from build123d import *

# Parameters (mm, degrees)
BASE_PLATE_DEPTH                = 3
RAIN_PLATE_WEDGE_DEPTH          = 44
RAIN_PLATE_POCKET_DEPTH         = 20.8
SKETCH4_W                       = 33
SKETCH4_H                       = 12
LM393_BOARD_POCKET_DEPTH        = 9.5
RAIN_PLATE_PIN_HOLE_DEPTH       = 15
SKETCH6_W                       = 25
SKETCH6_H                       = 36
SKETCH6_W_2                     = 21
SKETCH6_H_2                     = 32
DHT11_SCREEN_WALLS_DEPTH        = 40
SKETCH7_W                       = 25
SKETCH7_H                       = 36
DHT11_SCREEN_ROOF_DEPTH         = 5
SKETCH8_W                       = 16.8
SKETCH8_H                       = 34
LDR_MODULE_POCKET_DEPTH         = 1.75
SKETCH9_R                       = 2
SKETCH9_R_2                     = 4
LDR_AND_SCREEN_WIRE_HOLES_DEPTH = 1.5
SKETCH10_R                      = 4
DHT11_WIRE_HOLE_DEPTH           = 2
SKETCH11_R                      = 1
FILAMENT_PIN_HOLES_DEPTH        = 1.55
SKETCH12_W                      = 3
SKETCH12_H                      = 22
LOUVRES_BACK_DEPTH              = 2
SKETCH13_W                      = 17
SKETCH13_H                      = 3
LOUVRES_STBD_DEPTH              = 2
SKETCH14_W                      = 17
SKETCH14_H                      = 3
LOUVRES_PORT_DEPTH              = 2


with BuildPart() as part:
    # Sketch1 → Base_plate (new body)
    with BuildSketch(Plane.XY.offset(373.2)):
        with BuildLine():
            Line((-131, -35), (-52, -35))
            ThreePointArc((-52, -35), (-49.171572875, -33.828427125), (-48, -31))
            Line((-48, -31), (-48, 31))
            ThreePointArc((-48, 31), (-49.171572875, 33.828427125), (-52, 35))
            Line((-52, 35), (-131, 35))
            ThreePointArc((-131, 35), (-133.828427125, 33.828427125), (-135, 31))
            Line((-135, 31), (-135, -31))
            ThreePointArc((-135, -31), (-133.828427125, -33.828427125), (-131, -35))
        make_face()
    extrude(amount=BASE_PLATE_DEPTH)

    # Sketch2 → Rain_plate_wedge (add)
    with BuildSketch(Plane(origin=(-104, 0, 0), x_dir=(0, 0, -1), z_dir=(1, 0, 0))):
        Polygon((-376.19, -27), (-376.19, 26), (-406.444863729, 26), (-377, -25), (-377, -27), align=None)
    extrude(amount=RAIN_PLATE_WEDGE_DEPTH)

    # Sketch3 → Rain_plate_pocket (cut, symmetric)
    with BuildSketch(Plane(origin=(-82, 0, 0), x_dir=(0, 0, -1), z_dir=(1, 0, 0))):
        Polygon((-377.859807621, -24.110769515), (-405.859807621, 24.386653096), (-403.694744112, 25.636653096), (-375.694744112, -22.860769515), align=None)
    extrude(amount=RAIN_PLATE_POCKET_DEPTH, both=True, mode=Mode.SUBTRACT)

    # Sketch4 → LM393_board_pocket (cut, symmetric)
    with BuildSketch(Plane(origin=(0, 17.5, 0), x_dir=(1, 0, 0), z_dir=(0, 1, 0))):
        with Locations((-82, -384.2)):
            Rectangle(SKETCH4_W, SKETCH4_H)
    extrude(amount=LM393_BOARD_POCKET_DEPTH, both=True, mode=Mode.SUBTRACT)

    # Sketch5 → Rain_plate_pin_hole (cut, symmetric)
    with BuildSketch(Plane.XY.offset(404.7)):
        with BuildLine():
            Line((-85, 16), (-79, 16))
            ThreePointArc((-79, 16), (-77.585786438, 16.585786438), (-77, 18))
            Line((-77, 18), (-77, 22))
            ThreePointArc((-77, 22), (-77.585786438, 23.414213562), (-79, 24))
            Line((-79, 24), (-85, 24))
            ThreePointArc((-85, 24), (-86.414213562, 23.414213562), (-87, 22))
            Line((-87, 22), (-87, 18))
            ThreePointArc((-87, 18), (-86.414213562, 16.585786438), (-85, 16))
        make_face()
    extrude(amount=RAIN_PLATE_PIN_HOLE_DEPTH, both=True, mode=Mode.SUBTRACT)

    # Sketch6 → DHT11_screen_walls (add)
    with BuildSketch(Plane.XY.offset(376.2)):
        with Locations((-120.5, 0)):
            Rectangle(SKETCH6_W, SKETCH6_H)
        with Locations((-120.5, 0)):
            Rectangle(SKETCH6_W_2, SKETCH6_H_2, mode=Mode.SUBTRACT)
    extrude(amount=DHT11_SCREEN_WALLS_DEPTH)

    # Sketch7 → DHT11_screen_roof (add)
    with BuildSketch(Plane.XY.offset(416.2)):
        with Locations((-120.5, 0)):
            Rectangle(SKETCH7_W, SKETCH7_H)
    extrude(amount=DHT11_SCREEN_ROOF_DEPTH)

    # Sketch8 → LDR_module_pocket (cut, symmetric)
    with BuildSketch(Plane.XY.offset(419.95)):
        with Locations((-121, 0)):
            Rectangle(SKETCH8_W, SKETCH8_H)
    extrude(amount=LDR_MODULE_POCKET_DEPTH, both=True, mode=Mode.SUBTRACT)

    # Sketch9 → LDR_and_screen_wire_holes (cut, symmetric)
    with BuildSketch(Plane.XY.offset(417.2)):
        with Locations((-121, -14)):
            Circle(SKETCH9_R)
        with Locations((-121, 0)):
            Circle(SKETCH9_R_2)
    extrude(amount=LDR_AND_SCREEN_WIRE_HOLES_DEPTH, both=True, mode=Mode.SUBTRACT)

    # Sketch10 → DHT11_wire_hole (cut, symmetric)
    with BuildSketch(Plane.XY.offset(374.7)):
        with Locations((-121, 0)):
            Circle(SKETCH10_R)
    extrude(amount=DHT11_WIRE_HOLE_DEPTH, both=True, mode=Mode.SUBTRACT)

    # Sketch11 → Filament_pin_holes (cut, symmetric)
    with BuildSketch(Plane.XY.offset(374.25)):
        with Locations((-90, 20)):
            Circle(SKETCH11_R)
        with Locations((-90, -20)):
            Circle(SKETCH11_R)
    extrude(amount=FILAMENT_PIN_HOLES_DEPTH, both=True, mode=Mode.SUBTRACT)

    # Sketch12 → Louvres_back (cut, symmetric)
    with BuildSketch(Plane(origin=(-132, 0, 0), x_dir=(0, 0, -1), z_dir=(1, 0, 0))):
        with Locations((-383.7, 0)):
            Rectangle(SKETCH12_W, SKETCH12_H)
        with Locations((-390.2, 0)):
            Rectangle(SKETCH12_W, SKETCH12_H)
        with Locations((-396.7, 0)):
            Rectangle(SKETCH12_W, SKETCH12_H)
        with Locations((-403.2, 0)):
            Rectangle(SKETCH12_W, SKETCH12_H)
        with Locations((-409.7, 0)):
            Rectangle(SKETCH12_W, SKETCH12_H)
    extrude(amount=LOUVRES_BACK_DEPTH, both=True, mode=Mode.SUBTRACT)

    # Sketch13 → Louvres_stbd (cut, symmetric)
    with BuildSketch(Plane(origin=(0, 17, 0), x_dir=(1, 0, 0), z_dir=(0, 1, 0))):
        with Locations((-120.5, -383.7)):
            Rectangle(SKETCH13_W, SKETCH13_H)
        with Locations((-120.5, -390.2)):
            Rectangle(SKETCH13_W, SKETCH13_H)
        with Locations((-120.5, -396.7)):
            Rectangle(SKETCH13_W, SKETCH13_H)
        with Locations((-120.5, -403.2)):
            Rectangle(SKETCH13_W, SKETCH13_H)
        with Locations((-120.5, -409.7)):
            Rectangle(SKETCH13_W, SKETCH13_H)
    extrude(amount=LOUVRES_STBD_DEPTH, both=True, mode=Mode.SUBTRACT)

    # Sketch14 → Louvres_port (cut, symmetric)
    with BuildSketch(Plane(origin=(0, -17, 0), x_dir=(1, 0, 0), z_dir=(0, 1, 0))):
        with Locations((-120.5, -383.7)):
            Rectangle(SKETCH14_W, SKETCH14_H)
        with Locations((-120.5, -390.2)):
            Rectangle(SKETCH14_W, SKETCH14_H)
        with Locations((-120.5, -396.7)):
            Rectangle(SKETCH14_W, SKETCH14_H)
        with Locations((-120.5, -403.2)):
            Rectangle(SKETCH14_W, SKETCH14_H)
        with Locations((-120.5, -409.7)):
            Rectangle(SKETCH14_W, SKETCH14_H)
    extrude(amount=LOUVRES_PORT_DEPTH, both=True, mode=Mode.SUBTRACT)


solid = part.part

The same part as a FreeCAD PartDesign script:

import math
import FreeCAD as App
import Part
import Sketcher
Q = App.Units.Quantity

doc = App.newDocument("Part")
body = doc.addObject("PartDesign::Body", "Body")

# Sketch on XY plane
sketch1 = body.newObject("Sketcher::SketchObject", "Sketch")
sketch1.AttachmentSupport = (doc.getObject("XY_Plane"), [""])
sketch1.MapMode = "FlatFace"
sketch1.AttachmentOffset = App.Placement(App.Vector(0, 0, 373.2), App.Rotation())
sketch1.addGeometry([
    Part.LineSegment(App.Vector(-131, -35, 0), App.Vector(-52, -35, 0)),  # 0
    Part.ArcOfCircle(Part.Circle(App.Vector(-52, -31, 0), App.Vector(0, 0, 1), 4), math.radians(-90), math.radians(0)),  # 1
    Part.LineSegment(App.Vector(-48, -31, 0), App.Vector(-48, 31, 0)),  # 2
    Part.ArcOfCircle(Part.Circle(App.Vector(-52, 31, 0), App.Vector(0, 0, 1), 4), math.radians(0), math.radians(90)),  # 3
    Part.LineSegment(App.Vector(-52, 35, 0), App.Vector(-131, 35, 0)),  # 4
    Part.ArcOfCircle(Part.Circle(App.Vector(-131, 31, 0), App.Vector(0, 0, 1), 4), math.radians(90), math.radians(180)),  # 5
    Part.LineSegment(App.Vector(-135, 31, 0), App.Vector(-135, -31, 0)),  # 6
    Part.ArcOfCircle(Part.Circle(App.Vector(-131, -31, 0), App.Vector(0, 0, 1), 4), math.radians(180), math.radians(270)),  # 7
], False)
sketch1.addConstraint([
    Sketcher.Constraint("Tangent", 0, 2, 1, 1),
    Sketcher.Constraint("Tangent", 1, 2, 2, 1),
    Sketcher.Constraint("Tangent", 2, 2, 3, 1),
    Sketcher.Constraint("Tangent", 3, 2, 4, 1),
    Sketcher.Constraint("Tangent", 4, 2, 5, 1),
    Sketcher.Constraint("Tangent", 5, 2, 6, 1),
    Sketcher.Constraint("Tangent", 6, 2, 7, 1),
    Sketcher.Constraint("Tangent", 7, 2, 0, 1),
    Sketcher.Constraint("Horizontal", 0),
    Sketcher.Constraint("Vertical", 2),
    Sketcher.Constraint("Horizontal", 4),
    Sketcher.Constraint("Vertical", 6),
    Sketcher.Constraint("Equal", 1, 3),
    Sketcher.Constraint("Equal", 3, 5),
    Sketcher.Constraint("Equal", 5, 7),
    Sketcher.Constraint("Radius", 1, 4.0),
    Sketcher.Constraint("DistanceX", 0, 1, 0, 2, 79.0),
    Sketcher.Constraint("DistanceY", 2, 1, 2, 2, 62.0),
    Sketcher.Constraint("DistanceX", 1, 3, -1, 1, 52.0),
    Sketcher.Constraint("DistanceY", 1, 3, -1, 1, 31.0),
])
pad1 = body.newObject("PartDesign::Pad", "Pad")
pad1.Profile = sketch1
pad1.Length = 3

# Sketch on YZ plane
sketch2 = body.newObject("Sketcher::SketchObject", "Sketch001")
sketch2.AttachmentSupport = (doc.getObject("YZ_Plane"), [""])
sketch2.MapMode = "FlatFace"
sketch2.AttachmentOffset = App.Placement(App.Vector(0, 0, -104), App.Rotation())
sketch2.addGeometry([
    Part.LineSegment(App.Vector(-27, 376.19, 0), App.Vector(26, 376.19, 0)),  # 0
    Part.LineSegment(App.Vector(26, 376.19, 0), App.Vector(26, 406.444864, 0)),  # 1
    Part.LineSegment(App.Vector(26, 406.444864, 0), App.Vector(-25, 377, 0)),  # 2
    Part.LineSegment(App.Vector(-25, 377, 0), App.Vector(-27, 377, 0)),  # 3
    Part.LineSegment(App.Vector(-27, 377, 0), App.Vector(-27, 376.19, 0)),  # 4
], False)
sketch2.addConstraint([
    Sketcher.Constraint("Coincident", 0, 2, 1, 1),
    Sketcher.Constraint("Coincident", 1, 2, 2, 1),
    Sketcher.Constraint("Coincident", 2, 2, 3, 1),
    Sketcher.Constraint("Coincident", 3, 2, 4, 1),
    Sketcher.Constraint("Coincident", 4, 2, 0, 1),
    Sketcher.Constraint("Horizontal", 0),
    Sketcher.Constraint("Vertical", 1),
    Sketcher.Constraint("Horizontal", 3),
    Sketcher.Constraint("Vertical", 4),
    Sketcher.Constraint("DistanceX", 0, 1, 0, 2, 53.0),
    Sketcher.Constraint("DistanceX", 3, 2, 3, 1, 2.0),
    Sketcher.Constraint("Angle", 2, Q("-150 deg")),
    Sketcher.Constraint("DistanceX", -1, 1, 0, 2, 26.0),
    Sketcher.Constraint("DistanceY", -1, 1, 2, 2, 377.0),
    Sketcher.Constraint("DistanceY", 4, 2, 4, 1, 0.81),
])
pad2 = body.newObject("PartDesign::Pad", "Pad001")
pad2.Profile = sketch2
pad2.Length = 44

# Sketch on YZ plane
sketch3 = body.newObject("Sketcher::SketchObject", "Sketch002")
sketch3.AttachmentSupport = (doc.getObject("YZ_Plane"), [""])
sketch3.MapMode = "FlatFace"
sketch3.AttachmentOffset = App.Placement(App.Vector(0, 0, -82), App.Rotation())
sketch3.addGeometry([
    Part.LineSegment(App.Vector(24.386653, 405.859808, 0), App.Vector(-24.11077, 377.859808, 0)),
    Part.LineSegment(App.Vector(-24.11077, 377.859808, 0), App.Vector(-22.86077, 375.694744, 0)),
    Part.LineSegment(App.Vector(-22.86077, 375.694744, 0), App.Vector(25.636653, 403.694744, 0)),
    Part.LineSegment(App.Vector(25.636653, 403.694744, 0), App.Vector(24.386653, 405.859808, 0)),
], False)
sketch3.addConstraint([
    Sketcher.Constraint("Coincident", 0, 2, 1, 1),
    Sketcher.Constraint("Coincident", 1, 2, 2, 1),
    Sketcher.Constraint("Coincident", 2, 2, 3, 1),
    Sketcher.Constraint("Coincident", 3, 2, 0, 1),
    Sketcher.Constraint("Perpendicular", 0, 1),
    Sketcher.Constraint("Perpendicular", 1, 2),
    Sketcher.Constraint("Perpendicular", 2, 3),
    Sketcher.Constraint("Angle", 0, Q("-150 deg")),
    Sketcher.Constraint("Distance", 0, 56.0),
    Sketcher.Constraint("Distance", 1, 2.5),
    Sketcher.Constraint("DistanceX", 0, 2, -1, 1, 24.11077),
    Sketcher.Constraint("DistanceY", -1, 1, 0, 2, 377.859808),
])
pocket1 = body.newObject("PartDesign::Pocket", "Pocket")
pocket1.Profile = sketch3
pocket1.Length = 41.6
pocket1.Midplane = True

# Sketch on XZ plane
sketch4 = body.newObject("Sketcher::SketchObject", "Sketch003")
sketch4.AttachmentSupport = (doc.getObject("XZ_Plane"), [""])
sketch4.MapMode = "FlatFace"
sketch4.AttachmentOffset = App.Placement(App.Vector(0, 0, -17.5), App.Rotation())
sketch4.addGeometry([
    Part.LineSegment(App.Vector(-98.5, 378.2, 0), App.Vector(-98.5, 390.2, 0)),
    Part.LineSegment(App.Vector(-98.5, 390.2, 0), App.Vector(-65.5, 390.2, 0)),
    Part.LineSegment(App.Vector(-65.5, 390.2, 0), App.Vector(-65.5, 378.2, 0)),
    Part.LineSegment(App.Vector(-65.5, 378.2, 0), App.Vector(-98.5, 378.2, 0)),
], False)
sketch4.addConstraint([
    Sketcher.Constraint("Coincident", 0, 2, 1, 1),
    Sketcher.Constraint("Coincident", 1, 2, 2, 1),
    Sketcher.Constraint("Coincident", 2, 2, 3, 1),
    Sketcher.Constraint("Coincident", 3, 2, 0, 1),
    Sketcher.Constraint("Vertical", 0),
    Sketcher.Constraint("Horizontal", 1),
    Sketcher.Constraint("Vertical", 2),
    Sketcher.Constraint("Horizontal", 3),
    Sketcher.Constraint("DistanceX", 1, 1, 1, 2, 33.0),
    Sketcher.Constraint("DistanceY", 0, 1, 0, 2, 12.0),
    Sketcher.Constraint("DistanceX", 0, 2, -1, 1, 98.5),
    Sketcher.Constraint("DistanceY", -1, 1, 0, 2, 390.2),
])
pocket2 = body.newObject("PartDesign::Pocket", "Pocket001")
pocket2.Profile = sketch4
pocket2.Length = 19
pocket2.Midplane = True

# Sketch on XY plane
sketch5 = body.newObject("Sketcher::SketchObject", "Sketch004")
sketch5.AttachmentSupport = (doc.getObject("XY_Plane"), [""])
sketch5.MapMode = "FlatFace"
sketch5.AttachmentOffset = App.Placement(App.Vector(0, 0, 404.7), App.Rotation())
sketch5.addGeometry([
    Part.LineSegment(App.Vector(-85, 16, 0), App.Vector(-79, 16, 0)),  # 0
    Part.ArcOfCircle(Part.Circle(App.Vector(-79, 18, 0), App.Vector(0, 0, 1), 2), math.radians(-90), math.radians(0)),  # 1
    Part.LineSegment(App.Vector(-77, 18, 0), App.Vector(-77, 22, 0)),  # 2
    Part.ArcOfCircle(Part.Circle(App.Vector(-79, 22, 0), App.Vector(0, 0, 1), 2), math.radians(0), math.radians(90)),  # 3
    Part.LineSegment(App.Vector(-79, 24, 0), App.Vector(-85, 24, 0)),  # 4
    Part.ArcOfCircle(Part.Circle(App.Vector(-85, 22, 0), App.Vector(0, 0, 1), 2), math.radians(90), math.radians(180)),  # 5
    Part.LineSegment(App.Vector(-87, 22, 0), App.Vector(-87, 18, 0)),  # 6
    Part.ArcOfCircle(Part.Circle(App.Vector(-85, 18, 0), App.Vector(0, 0, 1), 2), math.radians(-180), math.radians(-90)),  # 7
], False)
sketch5.addConstraint([
    Sketcher.Constraint("Tangent", 0, 2, 1, 1),
    Sketcher.Constraint("Tangent", 1, 2, 2, 1),
    Sketcher.Constraint("Tangent", 2, 2, 3, 1),
    Sketcher.Constraint("Tangent", 3, 2, 4, 1),
    Sketcher.Constraint("Tangent", 4, 2, 5, 1),
    Sketcher.Constraint("Tangent", 5, 2, 6, 1),
    Sketcher.Constraint("Tangent", 6, 2, 7, 1),
    Sketcher.Constraint("Tangent", 7, 2, 0, 1),
    Sketcher.Constraint("Horizontal", 0),
    Sketcher.Constraint("Vertical", 2),
    Sketcher.Constraint("Horizontal", 4),
    Sketcher.Constraint("Vertical", 6),
    Sketcher.Constraint("Equal", 1, 3),
    Sketcher.Constraint("Equal", 3, 5),
    Sketcher.Constraint("Equal", 5, 7),
    Sketcher.Constraint("Radius", 1, 2.0),
    Sketcher.Constraint("DistanceX", 0, 1, 0, 2, 6.0),
    Sketcher.Constraint("DistanceY", 2, 1, 2, 2, 4.0),
    Sketcher.Constraint("DistanceX", 1, 3, -1, 1, 79.0),
    Sketcher.Constraint("DistanceY", -1, 1, 1, 3, 18.0),
])
pocket3 = body.newObject("PartDesign::Pocket", "Pocket002")
pocket3.Profile = sketch5
pocket3.Length = 30
pocket3.Midplane = True

# Sketch on XY plane
sketch6 = body.newObject("Sketcher::SketchObject", "Sketch005")
sketch6.AttachmentSupport = (doc.getObject("XY_Plane"), [""])
sketch6.MapMode = "FlatFace"
sketch6.AttachmentOffset = App.Placement(App.Vector(0, 0, 376.2), App.Rotation())
sketch6.addGeometry([
    Part.LineSegment(App.Vector(-133, 18, 0), App.Vector(-133, -18, 0)),  # 0
    Part.LineSegment(App.Vector(-133, -18, 0), App.Vector(-108, -18, 0)),  # 1
    Part.LineSegment(App.Vector(-108, -18, 0), App.Vector(-108, 18, 0)),  # 2
    Part.LineSegment(App.Vector(-108, 18, 0), App.Vector(-133, 18, 0)),  # 3
    Part.LineSegment(App.Vector(-110, -16, 0), App.Vector(-131, -16, 0)),  # 4
    Part.LineSegment(App.Vector(-131, -16, 0), App.Vector(-131, 16, 0)),  # 5
    Part.LineSegment(App.Vector(-131, 16, 0), App.Vector(-110, 16, 0)),  # 6
    Part.LineSegment(App.Vector(-110, 16, 0), App.Vector(-110, -16, 0)),  # 7
], False)
sketch6.addConstraint([
    Sketcher.Constraint("Coincident", 0, 2, 1, 1),
    Sketcher.Constraint("Coincident", 1, 2, 2, 1),
    Sketcher.Constraint("Coincident", 2, 2, 3, 1),
    Sketcher.Constraint("Coincident", 3, 2, 0, 1),
    Sketcher.Constraint("Coincident", 4, 2, 5, 1),
    Sketcher.Constraint("Coincident", 5, 2, 6, 1),
    Sketcher.Constraint("Coincident", 6, 2, 7, 1),
    Sketcher.Constraint("Coincident", 7, 2, 4, 1),
    Sketcher.Constraint("Vertical", 0),
    Sketcher.Constraint("Horizontal", 1),
    Sketcher.Constraint("Vertical", 2),
    Sketcher.Constraint("Horizontal", 3),
    Sketcher.Constraint("Horizontal", 4),
    Sketcher.Constraint("Vertical", 5),
    Sketcher.Constraint("Horizontal", 6),
    Sketcher.Constraint("Vertical", 7),
    Sketcher.Constraint("DistanceX", 1, 1, 1, 2, 25.0),
    Sketcher.Constraint("DistanceX", 4, 2, 4, 1, 21.0),
    Sketcher.Constraint("DistanceY", 0, 2, 0, 1, 36.0),
    Sketcher.Constraint("DistanceY", 5, 1, 5, 2, 32.0),
    Sketcher.Constraint("DistanceX", 0, 2, -1, 1, 133.0),
    Sketcher.Constraint("DistanceY", 0, 2, -1, 1, 18.0),
    Sketcher.Constraint("DistanceX", 4, 2, -1, 1, 131.0),
    Sketcher.Constraint("DistanceY", 4, 2, -1, 1, 16.0),
])
pad3 = body.newObject("PartDesign::Pad", "Pad002")
pad3.Profile = sketch6
pad3.Length = 40

# Sketch on XY plane
sketch7 = body.newObject("Sketcher::SketchObject", "Sketch006")
sketch7.AttachmentSupport = (doc.getObject("XY_Plane"), [""])
sketch7.MapMode = "FlatFace"
sketch7.AttachmentOffset = App.Placement(App.Vector(0, 0, 416.2), App.Rotation())
sketch7.addGeometry([
    Part.LineSegment(App.Vector(-133, 18, 0), App.Vector(-133, -18, 0)),
    Part.LineSegment(App.Vector(-133, -18, 0), App.Vector(-108, -18, 0)),
    Part.LineSegment(App.Vector(-108, -18, 0), App.Vector(-108, 18, 0)),
    Part.LineSegment(App.Vector(-108, 18, 0), App.Vector(-133, 18, 0)),
], False)
sketch7.addConstraint([
    Sketcher.Constraint("Coincident", 0, 2, 1, 1),
    Sketcher.Constraint("Coincident", 1, 2, 2, 1),
    Sketcher.Constraint("Coincident", 2, 2, 3, 1),
    Sketcher.Constraint("Coincident", 3, 2, 0, 1),
    Sketcher.Constraint("Vertical", 0),
    Sketcher.Constraint("Horizontal", 1),
    Sketcher.Constraint("Vertical", 2),
    Sketcher.Constraint("Horizontal", 3),
    Sketcher.Constraint("DistanceX", 1, 1, 1, 2, 25.0),
    Sketcher.Constraint("DistanceY", 0, 2, 0, 1, 36.0),
    Sketcher.Constraint("DistanceX", 0, 2, -1, 1, 133.0),
    Sketcher.Constraint("DistanceY", 0, 2, -1, 1, 18.0),
])
pad4 = body.newObject("PartDesign::Pad", "Pad003")
pad4.Profile = sketch7
pad4.Length = 5

# Sketch on XY plane
sketch8 = body.newObject("Sketcher::SketchObject", "Sketch007")
sketch8.AttachmentSupport = (doc.getObject("XY_Plane"), [""])
sketch8.MapMode = "FlatFace"
sketch8.AttachmentOffset = App.Placement(App.Vector(0, 0, 419.95), App.Rotation())
sketch8.addGeometry([
    Part.LineSegment(App.Vector(-129.4, 17, 0), App.Vector(-129.4, -17, 0)),
    Part.LineSegment(App.Vector(-129.4, -17, 0), App.Vector(-112.6, -17, 0)),
    Part.LineSegment(App.Vector(-112.6, -17, 0), App.Vector(-112.6, 17, 0)),
    Part.LineSegment(App.Vector(-112.6, 17, 0), App.Vector(-129.4, 17, 0)),
], False)
sketch8.addConstraint([
    Sketcher.Constraint("Coincident", 0, 2, 1, 1),
    Sketcher.Constraint("Coincident", 1, 2, 2, 1),
    Sketcher.Constraint("Coincident", 2, 2, 3, 1),
    Sketcher.Constraint("Coincident", 3, 2, 0, 1),
    Sketcher.Constraint("Vertical", 0),
    Sketcher.Constraint("Horizontal", 1),
    Sketcher.Constraint("Vertical", 2),
    Sketcher.Constraint("Horizontal", 3),
    Sketcher.Constraint("DistanceY", 0, 2, 0, 1, 34.0),
    Sketcher.Constraint("DistanceX", 1, 1, 1, 2, 16.8),
    Sketcher.Constraint("DistanceY", 0, 2, -1, 1, 17.0),
    Sketcher.Constraint("DistanceX", 0, 2, -1, 1, 129.4),
])
pocket4 = body.newObject("PartDesign::Pocket", "Pocket003")
pocket4.Profile = sketch8
pocket4.Length = 3.5
pocket4.Midplane = True

# Sketch on XY plane
sketch9 = body.newObject("Sketcher::SketchObject", "Sketch008")
sketch9.AttachmentSupport = (doc.getObject("XY_Plane"), [""])
sketch9.MapMode = "FlatFace"
sketch9.AttachmentOffset = App.Placement(App.Vector(0, 0, 417.2), App.Rotation())
sketch9.addGeometry([
    Part.Circle(App.Vector(-121, -14, 0), App.Vector(0, 0, 1), 2),
    Part.Circle(App.Vector(-121, 0, 0), App.Vector(0, 0, 1), 4),
], False)
sketch9.addConstraint([
    Sketcher.Constraint("PointOnObject", 1, 3, -1),
    Sketcher.Constraint("Vertical", 0, 3, 1, 3),
    Sketcher.Constraint("Diameter", 0, 4.0),
    Sketcher.Constraint("Diameter", 1, 8.0),
    Sketcher.Constraint("DistanceX", 0, 3, -1, 1, 121.0),
    Sketcher.Constraint("DistanceY", 0, 3, -1, 1, 14.0),
])
pocket5 = body.newObject("PartDesign::Pocket", "Pocket004")
pocket5.Profile = sketch9
pocket5.Length = 3
pocket5.Midplane = True

# Sketch on XY plane
sketch10 = body.newObject("Sketcher::SketchObject", "Sketch009")
sketch10.AttachmentSupport = (doc.getObject("XY_Plane"), [""])
sketch10.MapMode = "FlatFace"
sketch10.AttachmentOffset = App.Placement(App.Vector(0, 0, 374.7), App.Rotation())
sketch10.addGeometry(Part.Circle(App.Vector(-121, 0, 0), App.Vector(0, 0, 1), 4), False)
sketch10.addConstraint([
    Sketcher.Constraint("PointOnObject", 0, 3, -1),
    Sketcher.Constraint("Diameter", 0, 8.0),
    Sketcher.Constraint("DistanceX", 0, 3, -1, 1, 121.0),
])
pocket6 = body.newObject("PartDesign::Pocket", "Pocket005")
pocket6.Profile = sketch10
pocket6.Length = 4
pocket6.Midplane = True

# Sketch on XY plane
sketch11 = body.newObject("Sketcher::SketchObject", "Sketch010")
sketch11.AttachmentSupport = (doc.getObject("XY_Plane"), [""])
sketch11.MapMode = "FlatFace"
sketch11.AttachmentOffset = App.Placement(App.Vector(0, 0, 374.25), App.Rotation())
sketch11.addGeometry([
    Part.Circle(App.Vector(-90, 20, 0), App.Vector(0, 0, 1), 1),
    Part.Circle(App.Vector(-90, -20, 0), App.Vector(0, 0, 1), 1),
], False)
sketch11.addConstraint([
    Sketcher.Constraint("Equal", 0, 1),
    Sketcher.Constraint("Symmetric", 0, 3, 1, 3, -1),
    Sketcher.Constraint("Diameter", 0, 2.0),
    Sketcher.Constraint("DistanceX", 0, 3, -1, 1, 90.0),
    Sketcher.Constraint("DistanceY", -1, 1, 0, 3, 20.0),
])
pocket7 = body.newObject("PartDesign::Pocket", "Pocket006")
pocket7.Profile = sketch11
pocket7.Length = 3.1
pocket7.Midplane = True

# Sketch on YZ plane
sketch12 = body.newObject("Sketcher::SketchObject", "Sketch011")
sketch12.AttachmentSupport = (doc.getObject("YZ_Plane"), [""])
sketch12.MapMode = "FlatFace"
sketch12.AttachmentOffset = App.Placement(App.Vector(0, 0, -132), App.Rotation())
sketch12.addGeometry([
    Part.LineSegment(App.Vector(11, 385.2, 0), App.Vector(-11, 385.2, 0)),  # 0
    Part.LineSegment(App.Vector(-11, 385.2, 0), App.Vector(-11, 382.2, 0)),  # 1
    Part.LineSegment(App.Vector(-11, 382.2, 0), App.Vector(11, 382.2, 0)),  # 2
    Part.LineSegment(App.Vector(11, 382.2, 0), App.Vector(11, 385.2, 0)),  # 3
    Part.LineSegment(App.Vector(11, 391.7, 0), App.Vector(-11, 391.7, 0)),  # 4
    Part.LineSegment(App.Vector(-11, 391.7, 0), App.Vector(-11, 388.7, 0)),  # 5
    Part.LineSegment(App.Vector(-11, 388.7, 0), App.Vector(11, 388.7, 0)),  # 6
    Part.LineSegment(App.Vector(11, 388.7, 0), App.Vector(11, 391.7, 0)),  # 7
    Part.LineSegment(App.Vector(11, 398.2, 0), App.Vector(-11, 398.2, 0)),  # 8
    Part.LineSegment(App.Vector(-11, 398.2, 0), App.Vector(-11, 395.2, 0)),  # 9
    Part.LineSegment(App.Vector(-11, 395.2, 0), App.Vector(11, 395.2, 0)),  # 10
    Part.LineSegment(App.Vector(11, 395.2, 0), App.Vector(11, 398.2, 0)),  # 11
    Part.LineSegment(App.Vector(11, 404.7, 0), App.Vector(-11, 404.7, 0)),  # 12
    Part.LineSegment(App.Vector(-11, 404.7, 0), App.Vector(-11, 401.7, 0)),  # 13
    Part.LineSegment(App.Vector(-11, 401.7, 0), App.Vector(11, 401.7, 0)),  # 14
    Part.LineSegment(App.Vector(11, 401.7, 0), App.Vector(11, 404.7, 0)),  # 15
    Part.LineSegment(App.Vector(11, 411.2, 0), App.Vector(-11, 411.2, 0)),  # 16
    Part.LineSegment(App.Vector(-11, 411.2, 0), App.Vector(-11, 408.2, 0)),  # 17
    Part.LineSegment(App.Vector(-11, 408.2, 0), App.Vector(11, 408.2, 0)),  # 18
    Part.LineSegment(App.Vector(11, 408.2, 0), App.Vector(11, 411.2, 0)),  # 19
], False)
sketch12.addConstraint([
    Sketcher.Constraint("Coincident", 0, 2, 1, 1),
    Sketcher.Constraint("Coincident", 1, 2, 2, 1),
    Sketcher.Constraint("Coincident", 2, 2, 3, 1),
    Sketcher.Constraint("Coincident", 3, 2, 0, 1),
    Sketcher.Constraint("Coincident", 4, 2, 5, 1),
    Sketcher.Constraint("Coincident", 5, 2, 6, 1),
    Sketcher.Constraint("Coincident", 6, 2, 7, 1),
    Sketcher.Constraint("Coincident", 7, 2, 4, 1),
    Sketcher.Constraint("Coincident", 8, 2, 9, 1),
    Sketcher.Constraint("Coincident", 9, 2, 10, 1),
    Sketcher.Constraint("Coincident", 10, 2, 11, 1),
    Sketcher.Constraint("Coincident", 11, 2, 8, 1),
    Sketcher.Constraint("Coincident", 12, 2, 13, 1),
    Sketcher.Constraint("Coincident", 13, 2, 14, 1),
    Sketcher.Constraint("Coincident", 14, 2, 15, 1),
    Sketcher.Constraint("Coincident", 15, 2, 12, 1),
    Sketcher.Constraint("Coincident", 16, 2, 17, 1),
    Sketcher.Constraint("Coincident", 17, 2, 18, 1),
    Sketcher.Constraint("Coincident", 18, 2, 19, 1),
    Sketcher.Constraint("Coincident", 19, 2, 16, 1),
    Sketcher.Constraint("Horizontal", 0),
    Sketcher.Constraint("Vertical", 1),
    Sketcher.Constraint("Horizontal", 2),
    Sketcher.Constraint("Vertical", 3),
    Sketcher.Constraint("Horizontal", 4),
    Sketcher.Constraint("Vertical", 5),
    Sketcher.Constraint("Horizontal", 6),
    Sketcher.Constraint("Vertical", 7),
    Sketcher.Constraint("Horizontal", 8),
    Sketcher.Constraint("Vertical", 9),
    Sketcher.Constraint("Horizontal", 10),
    Sketcher.Constraint("Vertical", 11),
    Sketcher.Constraint("Horizontal", 12),
    Sketcher.Constraint("Vertical", 13),
    Sketcher.Constraint("Horizontal", 14),
    Sketcher.Constraint("Vertical", 15),
    Sketcher.Constraint("Horizontal", 16),
    Sketcher.Constraint("Vertical", 17),
    Sketcher.Constraint("Horizontal", 18),
    Sketcher.Constraint("Vertical", 19),
    Sketcher.Constraint("Vertical", 1, 2, 4, 2),
    Sketcher.Constraint("Vertical", 3, 2, 6, 2),
    Sketcher.Constraint("Vertical", 5, 2, 8, 2),
    Sketcher.Constraint("Vertical", 7, 2, 10, 2),
    Sketcher.Constraint("Vertical", 9, 2, 12, 2),
    Sketcher.Constraint("Vertical", 11, 2, 14, 2),
    Sketcher.Constraint("Vertical", 13, 2, 16, 2),
    Sketcher.Constraint("Vertical", 15, 2, 18, 2),
    Sketcher.Constraint("Equal", 3, 5),
    Sketcher.Constraint("Equal", 7, 9),
    Sketcher.Constraint("Equal", 11, 13),
    Sketcher.Constraint("Equal", 15, 17),
    Sketcher.Constraint("DistanceX", 0, 2, 0, 1, 22.0),
    Sketcher.Constraint("DistanceY", 1, 2, 1, 1, 3.0),
    Sketcher.Constraint("DistanceX", 0, 2, -1, 1, 11.0),
    Sketcher.Constraint("DistanceY", 0, 2, 8, 2, 13.0),
    Sketcher.Constraint("DistanceY", 4, 2, 12, 2, 13.0),
    Sketcher.Constraint("DistanceY", 8, 2, 16, 2, 13.0),
    Sketcher.Constraint("DistanceY", -1, 1, 0, 2, 385.2),
    Sketcher.Constraint("DistanceY", -1, 1, 4, 2, 391.7),
])
pocket8 = body.newObject("PartDesign::Pocket", "Pocket007")
pocket8.Profile = sketch12
pocket8.Length = 4
pocket8.Midplane = True

# Sketch on XZ plane
sketch13 = body.newObject("Sketcher::SketchObject", "Sketch012")
sketch13.AttachmentSupport = (doc.getObject("XZ_Plane"), [""])
sketch13.MapMode = "FlatFace"
sketch13.AttachmentOffset = App.Placement(App.Vector(0, 0, -17), App.Rotation())
sketch13.addGeometry([
    Part.LineSegment(App.Vector(-129, 382.2, 0), App.Vector(-129, 385.2, 0)),  # 0
    Part.LineSegment(App.Vector(-129, 385.2, 0), App.Vector(-112, 385.2, 0)),  # 1
    Part.LineSegment(App.Vector(-112, 385.2, 0), App.Vector(-112, 382.2, 0)),  # 2
    Part.LineSegment(App.Vector(-112, 382.2, 0), App.Vector(-129, 382.2, 0)),  # 3
    Part.LineSegment(App.Vector(-129, 388.7, 0), App.Vector(-129, 391.7, 0)),  # 4
    Part.LineSegment(App.Vector(-129, 391.7, 0), App.Vector(-112, 391.7, 0)),  # 5
    Part.LineSegment(App.Vector(-112, 391.7, 0), App.Vector(-112, 388.7, 0)),  # 6
    Part.LineSegment(App.Vector(-112, 388.7, 0), App.Vector(-129, 388.7, 0)),  # 7
    Part.LineSegment(App.Vector(-129, 395.2, 0), App.Vector(-129, 398.2, 0)),  # 8
    Part.LineSegment(App.Vector(-129, 398.2, 0), App.Vector(-112, 398.2, 0)),  # 9
    Part.LineSegment(App.Vector(-112, 398.2, 0), App.Vector(-112, 395.2, 0)),  # 10
    Part.LineSegment(App.Vector(-112, 395.2, 0), App.Vector(-129, 395.2, 0)),  # 11
    Part.LineSegment(App.Vector(-129, 401.7, 0), App.Vector(-129, 404.7, 0)),  # 12
    Part.LineSegment(App.Vector(-129, 404.7, 0), App.Vector(-112, 404.7, 0)),  # 13
    Part.LineSegment(App.Vector(-112, 404.7, 0), App.Vector(-112, 401.7, 0)),  # 14
    Part.LineSegment(App.Vector(-112, 401.7, 0), App.Vector(-129, 401.7, 0)),  # 15
    Part.LineSegment(App.Vector(-129, 408.2, 0), App.Vector(-129, 411.2, 0)),  # 16
    Part.LineSegment(App.Vector(-129, 411.2, 0), App.Vector(-112, 411.2, 0)),  # 17
    Part.LineSegment(App.Vector(-112, 411.2, 0), App.Vector(-112, 408.2, 0)),  # 18
    Part.LineSegment(App.Vector(-112, 408.2, 0), App.Vector(-129, 408.2, 0)),  # 19
], False)
sketch13.addConstraint([
    Sketcher.Constraint("Coincident", 0, 2, 1, 1),
    Sketcher.Constraint("Coincident", 1, 2, 2, 1),
    Sketcher.Constraint("Coincident", 2, 2, 3, 1),
    Sketcher.Constraint("Coincident", 3, 2, 0, 1),
    Sketcher.Constraint("Coincident", 4, 2, 5, 1),
    Sketcher.Constraint("Coincident", 5, 2, 6, 1),
    Sketcher.Constraint("Coincident", 6, 2, 7, 1),
    Sketcher.Constraint("Coincident", 7, 2, 4, 1),
    Sketcher.Constraint("Coincident", 8, 2, 9, 1),
    Sketcher.Constraint("Coincident", 9, 2, 10, 1),
    Sketcher.Constraint("Coincident", 10, 2, 11, 1),
    Sketcher.Constraint("Coincident", 11, 2, 8, 1),
    Sketcher.Constraint("Coincident", 12, 2, 13, 1),
    Sketcher.Constraint("Coincident", 13, 2, 14, 1),
    Sketcher.Constraint("Coincident", 14, 2, 15, 1),
    Sketcher.Constraint("Coincident", 15, 2, 12, 1),
    Sketcher.Constraint("Coincident", 16, 2, 17, 1),
    Sketcher.Constraint("Coincident", 17, 2, 18, 1),
    Sketcher.Constraint("Coincident", 18, 2, 19, 1),
    Sketcher.Constraint("Coincident", 19, 2, 16, 1),
    Sketcher.Constraint("Vertical", 0),
    Sketcher.Constraint("Horizontal", 1),
    Sketcher.Constraint("Vertical", 2),
    Sketcher.Constraint("Horizontal", 3),
    Sketcher.Constraint("Vertical", 4),
    Sketcher.Constraint("Horizontal", 5),
    Sketcher.Constraint("Vertical", 6),
    Sketcher.Constraint("Horizontal", 7),
    Sketcher.Constraint("Vertical", 8),
    Sketcher.Constraint("Horizontal", 9),
    Sketcher.Constraint("Vertical", 10),
    Sketcher.Constraint("Horizontal", 11),
    Sketcher.Constraint("Vertical", 12),
    Sketcher.Constraint("Horizontal", 13),
    Sketcher.Constraint("Vertical", 14),
    Sketcher.Constraint("Horizontal", 15),
    Sketcher.Constraint("Vertical", 16),
    Sketcher.Constraint("Horizontal", 17),
    Sketcher.Constraint("Vertical", 18),
    Sketcher.Constraint("Horizontal", 19),
    Sketcher.Constraint("Vertical", 3, 2, 4, 2),
    Sketcher.Constraint("Vertical", 2, 2, 5, 2),
    Sketcher.Constraint("Vertical", 7, 2, 8, 2),
    Sketcher.Constraint("Vertical", 6, 2, 9, 2),
    Sketcher.Constraint("Vertical", 11, 2, 12, 2),
    Sketcher.Constraint("Vertical", 10, 2, 13, 2),
    Sketcher.Constraint("Vertical", 15, 2, 16, 2),
    Sketcher.Constraint("Vertical", 14, 2, 17, 2),
    Sketcher.Constraint("Equal", 2, 4),
    Sketcher.Constraint("Equal", 6, 8),
    Sketcher.Constraint("Equal", 10, 12),
    Sketcher.Constraint("Equal", 14, 16),
    Sketcher.Constraint("DistanceX", 1, 1, 1, 2, 17.0),
    Sketcher.Constraint("DistanceY", 0, 1, 0, 2, 3.0),
    Sketcher.Constraint("DistanceX", 0, 2, -1, 1, 129.0),
    Sketcher.Constraint("DistanceY", 0, 2, 8, 2, 13.0),
    Sketcher.Constraint("DistanceY", 4, 2, 12, 2, 13.0),
    Sketcher.Constraint("DistanceY", 8, 2, 16, 2, 13.0),
    Sketcher.Constraint("DistanceY", -1, 1, 0, 2, 385.2),
    Sketcher.Constraint("DistanceY", -1, 1, 4, 2, 391.7),
])
pocket9 = body.newObject("PartDesign::Pocket", "Pocket008")
pocket9.Profile = sketch13
pocket9.Length = 4
pocket9.Midplane = True

# Sketch on XZ plane
sketch14 = body.newObject("Sketcher::SketchObject", "Sketch013")
sketch14.AttachmentSupport = (doc.getObject("XZ_Plane"), [""])
sketch14.MapMode = "FlatFace"
sketch14.AttachmentOffset = App.Placement(App.Vector(0, 0, 17), App.Rotation())
sketch14.addGeometry([
    Part.LineSegment(App.Vector(-129, 382.2, 0), App.Vector(-129, 385.2, 0)),  # 0
    Part.LineSegment(App.Vector(-129, 385.2, 0), App.Vector(-112, 385.2, 0)),  # 1
    Part.LineSegment(App.Vector(-112, 385.2, 0), App.Vector(-112, 382.2, 0)),  # 2
    Part.LineSegment(App.Vector(-112, 382.2, 0), App.Vector(-129, 382.2, 0)),  # 3
    Part.LineSegment(App.Vector(-129, 388.7, 0), App.Vector(-129, 391.7, 0)),  # 4
    Part.LineSegment(App.Vector(-129, 391.7, 0), App.Vector(-112, 391.7, 0)),  # 5
    Part.LineSegment(App.Vector(-112, 391.7, 0), App.Vector(-112, 388.7, 0)),  # 6
    Part.LineSegment(App.Vector(-112, 388.7, 0), App.Vector(-129, 388.7, 0)),  # 7
    Part.LineSegment(App.Vector(-129, 395.2, 0), App.Vector(-129, 398.2, 0)),  # 8
    Part.LineSegment(App.Vector(-129, 398.2, 0), App.Vector(-112, 398.2, 0)),  # 9
    Part.LineSegment(App.Vector(-112, 398.2, 0), App.Vector(-112, 395.2, 0)),  # 10
    Part.LineSegment(App.Vector(-112, 395.2, 0), App.Vector(-129, 395.2, 0)),  # 11
    Part.LineSegment(App.Vector(-129, 401.7, 0), App.Vector(-129, 404.7, 0)),  # 12
    Part.LineSegment(App.Vector(-129, 404.7, 0), App.Vector(-112, 404.7, 0)),  # 13
    Part.LineSegment(App.Vector(-112, 404.7, 0), App.Vector(-112, 401.7, 0)),  # 14
    Part.LineSegment(App.Vector(-112, 401.7, 0), App.Vector(-129, 401.7, 0)),  # 15
    Part.LineSegment(App.Vector(-129, 408.2, 0), App.Vector(-129, 411.2, 0)),  # 16
    Part.LineSegment(App.Vector(-129, 411.2, 0), App.Vector(-112, 411.2, 0)),  # 17
    Part.LineSegment(App.Vector(-112, 411.2, 0), App.Vector(-112, 408.2, 0)),  # 18
    Part.LineSegment(App.Vector(-112, 408.2, 0), App.Vector(-129, 408.2, 0)),  # 19
], False)
sketch14.addConstraint([
    Sketcher.Constraint("Coincident", 0, 2, 1, 1),
    Sketcher.Constraint("Coincident", 1, 2, 2, 1),
    Sketcher.Constraint("Coincident", 2, 2, 3, 1),
    Sketcher.Constraint("Coincident", 3, 2, 0, 1),
    Sketcher.Constraint("Coincident", 4, 2, 5, 1),
    Sketcher.Constraint("Coincident", 5, 2, 6, 1),
    Sketcher.Constraint("Coincident", 6, 2, 7, 1),
    Sketcher.Constraint("Coincident", 7, 2, 4, 1),
    Sketcher.Constraint("Coincident", 8, 2, 9, 1),
    Sketcher.Constraint("Coincident", 9, 2, 10, 1),
    Sketcher.Constraint("Coincident", 10, 2, 11, 1),
    Sketcher.Constraint("Coincident", 11, 2, 8, 1),
    Sketcher.Constraint("Coincident", 12, 2, 13, 1),
    Sketcher.Constraint("Coincident", 13, 2, 14, 1),
    Sketcher.Constraint("Coincident", 14, 2, 15, 1),
    Sketcher.Constraint("Coincident", 15, 2, 12, 1),
    Sketcher.Constraint("Coincident", 16, 2, 17, 1),
    Sketcher.Constraint("Coincident", 17, 2, 18, 1),
    Sketcher.Constraint("Coincident", 18, 2, 19, 1),
    Sketcher.Constraint("Coincident", 19, 2, 16, 1),
    Sketcher.Constraint("Vertical", 0),
    Sketcher.Constraint("Horizontal", 1),
    Sketcher.Constraint("Vertical", 2),
    Sketcher.Constraint("Horizontal", 3),
    Sketcher.Constraint("Vertical", 4),
    Sketcher.Constraint("Horizontal", 5),
    Sketcher.Constraint("Vertical", 6),
    Sketcher.Constraint("Horizontal", 7),
    Sketcher.Constraint("Vertical", 8),
    Sketcher.Constraint("Horizontal", 9),
    Sketcher.Constraint("Vertical", 10),
    Sketcher.Constraint("Horizontal", 11),
    Sketcher.Constraint("Vertical", 12),
    Sketcher.Constraint("Horizontal", 13),
    Sketcher.Constraint("Vertical", 14),
    Sketcher.Constraint("Horizontal", 15),
    Sketcher.Constraint("Vertical", 16),
    Sketcher.Constraint("Horizontal", 17),
    Sketcher.Constraint("Vertical", 18),
    Sketcher.Constraint("Horizontal", 19),
    Sketcher.Constraint("Vertical", 3, 2, 4, 2),
    Sketcher.Constraint("Vertical", 2, 2, 5, 2),
    Sketcher.Constraint("Vertical", 7, 2, 8, 2),
    Sketcher.Constraint("Vertical", 6, 2, 9, 2),
    Sketcher.Constraint("Vertical", 11, 2, 12, 2),
    Sketcher.Constraint("Vertical", 10, 2, 13, 2),
    Sketcher.Constraint("Vertical", 15, 2, 16, 2),
    Sketcher.Constraint("Vertical", 14, 2, 17, 2),
    Sketcher.Constraint("Equal", 2, 4),
    Sketcher.Constraint("Equal", 6, 8),
    Sketcher.Constraint("Equal", 10, 12),
    Sketcher.Constraint("Equal", 14, 16),
    Sketcher.Constraint("DistanceX", 1, 1, 1, 2, 17.0),
    Sketcher.Constraint("DistanceY", 0, 1, 0, 2, 3.0),
    Sketcher.Constraint("DistanceX", 0, 2, -1, 1, 129.0),
    Sketcher.Constraint("DistanceY", 0, 2, 8, 2, 13.0),
    Sketcher.Constraint("DistanceY", 4, 2, 12, 2, 13.0),
    Sketcher.Constraint("DistanceY", 8, 2, 16, 2, 13.0),
    Sketcher.Constraint("DistanceY", -1, 1, 0, 2, 385.2),
    Sketcher.Constraint("DistanceY", -1, 1, 4, 2, 391.7),
])
pocket10 = body.newObject("PartDesign::Pocket", "Pocket009")
pocket10.Profile = sketch14
pocket10.Length = 4
pocket10.Midplane = True

doc.recompute()
